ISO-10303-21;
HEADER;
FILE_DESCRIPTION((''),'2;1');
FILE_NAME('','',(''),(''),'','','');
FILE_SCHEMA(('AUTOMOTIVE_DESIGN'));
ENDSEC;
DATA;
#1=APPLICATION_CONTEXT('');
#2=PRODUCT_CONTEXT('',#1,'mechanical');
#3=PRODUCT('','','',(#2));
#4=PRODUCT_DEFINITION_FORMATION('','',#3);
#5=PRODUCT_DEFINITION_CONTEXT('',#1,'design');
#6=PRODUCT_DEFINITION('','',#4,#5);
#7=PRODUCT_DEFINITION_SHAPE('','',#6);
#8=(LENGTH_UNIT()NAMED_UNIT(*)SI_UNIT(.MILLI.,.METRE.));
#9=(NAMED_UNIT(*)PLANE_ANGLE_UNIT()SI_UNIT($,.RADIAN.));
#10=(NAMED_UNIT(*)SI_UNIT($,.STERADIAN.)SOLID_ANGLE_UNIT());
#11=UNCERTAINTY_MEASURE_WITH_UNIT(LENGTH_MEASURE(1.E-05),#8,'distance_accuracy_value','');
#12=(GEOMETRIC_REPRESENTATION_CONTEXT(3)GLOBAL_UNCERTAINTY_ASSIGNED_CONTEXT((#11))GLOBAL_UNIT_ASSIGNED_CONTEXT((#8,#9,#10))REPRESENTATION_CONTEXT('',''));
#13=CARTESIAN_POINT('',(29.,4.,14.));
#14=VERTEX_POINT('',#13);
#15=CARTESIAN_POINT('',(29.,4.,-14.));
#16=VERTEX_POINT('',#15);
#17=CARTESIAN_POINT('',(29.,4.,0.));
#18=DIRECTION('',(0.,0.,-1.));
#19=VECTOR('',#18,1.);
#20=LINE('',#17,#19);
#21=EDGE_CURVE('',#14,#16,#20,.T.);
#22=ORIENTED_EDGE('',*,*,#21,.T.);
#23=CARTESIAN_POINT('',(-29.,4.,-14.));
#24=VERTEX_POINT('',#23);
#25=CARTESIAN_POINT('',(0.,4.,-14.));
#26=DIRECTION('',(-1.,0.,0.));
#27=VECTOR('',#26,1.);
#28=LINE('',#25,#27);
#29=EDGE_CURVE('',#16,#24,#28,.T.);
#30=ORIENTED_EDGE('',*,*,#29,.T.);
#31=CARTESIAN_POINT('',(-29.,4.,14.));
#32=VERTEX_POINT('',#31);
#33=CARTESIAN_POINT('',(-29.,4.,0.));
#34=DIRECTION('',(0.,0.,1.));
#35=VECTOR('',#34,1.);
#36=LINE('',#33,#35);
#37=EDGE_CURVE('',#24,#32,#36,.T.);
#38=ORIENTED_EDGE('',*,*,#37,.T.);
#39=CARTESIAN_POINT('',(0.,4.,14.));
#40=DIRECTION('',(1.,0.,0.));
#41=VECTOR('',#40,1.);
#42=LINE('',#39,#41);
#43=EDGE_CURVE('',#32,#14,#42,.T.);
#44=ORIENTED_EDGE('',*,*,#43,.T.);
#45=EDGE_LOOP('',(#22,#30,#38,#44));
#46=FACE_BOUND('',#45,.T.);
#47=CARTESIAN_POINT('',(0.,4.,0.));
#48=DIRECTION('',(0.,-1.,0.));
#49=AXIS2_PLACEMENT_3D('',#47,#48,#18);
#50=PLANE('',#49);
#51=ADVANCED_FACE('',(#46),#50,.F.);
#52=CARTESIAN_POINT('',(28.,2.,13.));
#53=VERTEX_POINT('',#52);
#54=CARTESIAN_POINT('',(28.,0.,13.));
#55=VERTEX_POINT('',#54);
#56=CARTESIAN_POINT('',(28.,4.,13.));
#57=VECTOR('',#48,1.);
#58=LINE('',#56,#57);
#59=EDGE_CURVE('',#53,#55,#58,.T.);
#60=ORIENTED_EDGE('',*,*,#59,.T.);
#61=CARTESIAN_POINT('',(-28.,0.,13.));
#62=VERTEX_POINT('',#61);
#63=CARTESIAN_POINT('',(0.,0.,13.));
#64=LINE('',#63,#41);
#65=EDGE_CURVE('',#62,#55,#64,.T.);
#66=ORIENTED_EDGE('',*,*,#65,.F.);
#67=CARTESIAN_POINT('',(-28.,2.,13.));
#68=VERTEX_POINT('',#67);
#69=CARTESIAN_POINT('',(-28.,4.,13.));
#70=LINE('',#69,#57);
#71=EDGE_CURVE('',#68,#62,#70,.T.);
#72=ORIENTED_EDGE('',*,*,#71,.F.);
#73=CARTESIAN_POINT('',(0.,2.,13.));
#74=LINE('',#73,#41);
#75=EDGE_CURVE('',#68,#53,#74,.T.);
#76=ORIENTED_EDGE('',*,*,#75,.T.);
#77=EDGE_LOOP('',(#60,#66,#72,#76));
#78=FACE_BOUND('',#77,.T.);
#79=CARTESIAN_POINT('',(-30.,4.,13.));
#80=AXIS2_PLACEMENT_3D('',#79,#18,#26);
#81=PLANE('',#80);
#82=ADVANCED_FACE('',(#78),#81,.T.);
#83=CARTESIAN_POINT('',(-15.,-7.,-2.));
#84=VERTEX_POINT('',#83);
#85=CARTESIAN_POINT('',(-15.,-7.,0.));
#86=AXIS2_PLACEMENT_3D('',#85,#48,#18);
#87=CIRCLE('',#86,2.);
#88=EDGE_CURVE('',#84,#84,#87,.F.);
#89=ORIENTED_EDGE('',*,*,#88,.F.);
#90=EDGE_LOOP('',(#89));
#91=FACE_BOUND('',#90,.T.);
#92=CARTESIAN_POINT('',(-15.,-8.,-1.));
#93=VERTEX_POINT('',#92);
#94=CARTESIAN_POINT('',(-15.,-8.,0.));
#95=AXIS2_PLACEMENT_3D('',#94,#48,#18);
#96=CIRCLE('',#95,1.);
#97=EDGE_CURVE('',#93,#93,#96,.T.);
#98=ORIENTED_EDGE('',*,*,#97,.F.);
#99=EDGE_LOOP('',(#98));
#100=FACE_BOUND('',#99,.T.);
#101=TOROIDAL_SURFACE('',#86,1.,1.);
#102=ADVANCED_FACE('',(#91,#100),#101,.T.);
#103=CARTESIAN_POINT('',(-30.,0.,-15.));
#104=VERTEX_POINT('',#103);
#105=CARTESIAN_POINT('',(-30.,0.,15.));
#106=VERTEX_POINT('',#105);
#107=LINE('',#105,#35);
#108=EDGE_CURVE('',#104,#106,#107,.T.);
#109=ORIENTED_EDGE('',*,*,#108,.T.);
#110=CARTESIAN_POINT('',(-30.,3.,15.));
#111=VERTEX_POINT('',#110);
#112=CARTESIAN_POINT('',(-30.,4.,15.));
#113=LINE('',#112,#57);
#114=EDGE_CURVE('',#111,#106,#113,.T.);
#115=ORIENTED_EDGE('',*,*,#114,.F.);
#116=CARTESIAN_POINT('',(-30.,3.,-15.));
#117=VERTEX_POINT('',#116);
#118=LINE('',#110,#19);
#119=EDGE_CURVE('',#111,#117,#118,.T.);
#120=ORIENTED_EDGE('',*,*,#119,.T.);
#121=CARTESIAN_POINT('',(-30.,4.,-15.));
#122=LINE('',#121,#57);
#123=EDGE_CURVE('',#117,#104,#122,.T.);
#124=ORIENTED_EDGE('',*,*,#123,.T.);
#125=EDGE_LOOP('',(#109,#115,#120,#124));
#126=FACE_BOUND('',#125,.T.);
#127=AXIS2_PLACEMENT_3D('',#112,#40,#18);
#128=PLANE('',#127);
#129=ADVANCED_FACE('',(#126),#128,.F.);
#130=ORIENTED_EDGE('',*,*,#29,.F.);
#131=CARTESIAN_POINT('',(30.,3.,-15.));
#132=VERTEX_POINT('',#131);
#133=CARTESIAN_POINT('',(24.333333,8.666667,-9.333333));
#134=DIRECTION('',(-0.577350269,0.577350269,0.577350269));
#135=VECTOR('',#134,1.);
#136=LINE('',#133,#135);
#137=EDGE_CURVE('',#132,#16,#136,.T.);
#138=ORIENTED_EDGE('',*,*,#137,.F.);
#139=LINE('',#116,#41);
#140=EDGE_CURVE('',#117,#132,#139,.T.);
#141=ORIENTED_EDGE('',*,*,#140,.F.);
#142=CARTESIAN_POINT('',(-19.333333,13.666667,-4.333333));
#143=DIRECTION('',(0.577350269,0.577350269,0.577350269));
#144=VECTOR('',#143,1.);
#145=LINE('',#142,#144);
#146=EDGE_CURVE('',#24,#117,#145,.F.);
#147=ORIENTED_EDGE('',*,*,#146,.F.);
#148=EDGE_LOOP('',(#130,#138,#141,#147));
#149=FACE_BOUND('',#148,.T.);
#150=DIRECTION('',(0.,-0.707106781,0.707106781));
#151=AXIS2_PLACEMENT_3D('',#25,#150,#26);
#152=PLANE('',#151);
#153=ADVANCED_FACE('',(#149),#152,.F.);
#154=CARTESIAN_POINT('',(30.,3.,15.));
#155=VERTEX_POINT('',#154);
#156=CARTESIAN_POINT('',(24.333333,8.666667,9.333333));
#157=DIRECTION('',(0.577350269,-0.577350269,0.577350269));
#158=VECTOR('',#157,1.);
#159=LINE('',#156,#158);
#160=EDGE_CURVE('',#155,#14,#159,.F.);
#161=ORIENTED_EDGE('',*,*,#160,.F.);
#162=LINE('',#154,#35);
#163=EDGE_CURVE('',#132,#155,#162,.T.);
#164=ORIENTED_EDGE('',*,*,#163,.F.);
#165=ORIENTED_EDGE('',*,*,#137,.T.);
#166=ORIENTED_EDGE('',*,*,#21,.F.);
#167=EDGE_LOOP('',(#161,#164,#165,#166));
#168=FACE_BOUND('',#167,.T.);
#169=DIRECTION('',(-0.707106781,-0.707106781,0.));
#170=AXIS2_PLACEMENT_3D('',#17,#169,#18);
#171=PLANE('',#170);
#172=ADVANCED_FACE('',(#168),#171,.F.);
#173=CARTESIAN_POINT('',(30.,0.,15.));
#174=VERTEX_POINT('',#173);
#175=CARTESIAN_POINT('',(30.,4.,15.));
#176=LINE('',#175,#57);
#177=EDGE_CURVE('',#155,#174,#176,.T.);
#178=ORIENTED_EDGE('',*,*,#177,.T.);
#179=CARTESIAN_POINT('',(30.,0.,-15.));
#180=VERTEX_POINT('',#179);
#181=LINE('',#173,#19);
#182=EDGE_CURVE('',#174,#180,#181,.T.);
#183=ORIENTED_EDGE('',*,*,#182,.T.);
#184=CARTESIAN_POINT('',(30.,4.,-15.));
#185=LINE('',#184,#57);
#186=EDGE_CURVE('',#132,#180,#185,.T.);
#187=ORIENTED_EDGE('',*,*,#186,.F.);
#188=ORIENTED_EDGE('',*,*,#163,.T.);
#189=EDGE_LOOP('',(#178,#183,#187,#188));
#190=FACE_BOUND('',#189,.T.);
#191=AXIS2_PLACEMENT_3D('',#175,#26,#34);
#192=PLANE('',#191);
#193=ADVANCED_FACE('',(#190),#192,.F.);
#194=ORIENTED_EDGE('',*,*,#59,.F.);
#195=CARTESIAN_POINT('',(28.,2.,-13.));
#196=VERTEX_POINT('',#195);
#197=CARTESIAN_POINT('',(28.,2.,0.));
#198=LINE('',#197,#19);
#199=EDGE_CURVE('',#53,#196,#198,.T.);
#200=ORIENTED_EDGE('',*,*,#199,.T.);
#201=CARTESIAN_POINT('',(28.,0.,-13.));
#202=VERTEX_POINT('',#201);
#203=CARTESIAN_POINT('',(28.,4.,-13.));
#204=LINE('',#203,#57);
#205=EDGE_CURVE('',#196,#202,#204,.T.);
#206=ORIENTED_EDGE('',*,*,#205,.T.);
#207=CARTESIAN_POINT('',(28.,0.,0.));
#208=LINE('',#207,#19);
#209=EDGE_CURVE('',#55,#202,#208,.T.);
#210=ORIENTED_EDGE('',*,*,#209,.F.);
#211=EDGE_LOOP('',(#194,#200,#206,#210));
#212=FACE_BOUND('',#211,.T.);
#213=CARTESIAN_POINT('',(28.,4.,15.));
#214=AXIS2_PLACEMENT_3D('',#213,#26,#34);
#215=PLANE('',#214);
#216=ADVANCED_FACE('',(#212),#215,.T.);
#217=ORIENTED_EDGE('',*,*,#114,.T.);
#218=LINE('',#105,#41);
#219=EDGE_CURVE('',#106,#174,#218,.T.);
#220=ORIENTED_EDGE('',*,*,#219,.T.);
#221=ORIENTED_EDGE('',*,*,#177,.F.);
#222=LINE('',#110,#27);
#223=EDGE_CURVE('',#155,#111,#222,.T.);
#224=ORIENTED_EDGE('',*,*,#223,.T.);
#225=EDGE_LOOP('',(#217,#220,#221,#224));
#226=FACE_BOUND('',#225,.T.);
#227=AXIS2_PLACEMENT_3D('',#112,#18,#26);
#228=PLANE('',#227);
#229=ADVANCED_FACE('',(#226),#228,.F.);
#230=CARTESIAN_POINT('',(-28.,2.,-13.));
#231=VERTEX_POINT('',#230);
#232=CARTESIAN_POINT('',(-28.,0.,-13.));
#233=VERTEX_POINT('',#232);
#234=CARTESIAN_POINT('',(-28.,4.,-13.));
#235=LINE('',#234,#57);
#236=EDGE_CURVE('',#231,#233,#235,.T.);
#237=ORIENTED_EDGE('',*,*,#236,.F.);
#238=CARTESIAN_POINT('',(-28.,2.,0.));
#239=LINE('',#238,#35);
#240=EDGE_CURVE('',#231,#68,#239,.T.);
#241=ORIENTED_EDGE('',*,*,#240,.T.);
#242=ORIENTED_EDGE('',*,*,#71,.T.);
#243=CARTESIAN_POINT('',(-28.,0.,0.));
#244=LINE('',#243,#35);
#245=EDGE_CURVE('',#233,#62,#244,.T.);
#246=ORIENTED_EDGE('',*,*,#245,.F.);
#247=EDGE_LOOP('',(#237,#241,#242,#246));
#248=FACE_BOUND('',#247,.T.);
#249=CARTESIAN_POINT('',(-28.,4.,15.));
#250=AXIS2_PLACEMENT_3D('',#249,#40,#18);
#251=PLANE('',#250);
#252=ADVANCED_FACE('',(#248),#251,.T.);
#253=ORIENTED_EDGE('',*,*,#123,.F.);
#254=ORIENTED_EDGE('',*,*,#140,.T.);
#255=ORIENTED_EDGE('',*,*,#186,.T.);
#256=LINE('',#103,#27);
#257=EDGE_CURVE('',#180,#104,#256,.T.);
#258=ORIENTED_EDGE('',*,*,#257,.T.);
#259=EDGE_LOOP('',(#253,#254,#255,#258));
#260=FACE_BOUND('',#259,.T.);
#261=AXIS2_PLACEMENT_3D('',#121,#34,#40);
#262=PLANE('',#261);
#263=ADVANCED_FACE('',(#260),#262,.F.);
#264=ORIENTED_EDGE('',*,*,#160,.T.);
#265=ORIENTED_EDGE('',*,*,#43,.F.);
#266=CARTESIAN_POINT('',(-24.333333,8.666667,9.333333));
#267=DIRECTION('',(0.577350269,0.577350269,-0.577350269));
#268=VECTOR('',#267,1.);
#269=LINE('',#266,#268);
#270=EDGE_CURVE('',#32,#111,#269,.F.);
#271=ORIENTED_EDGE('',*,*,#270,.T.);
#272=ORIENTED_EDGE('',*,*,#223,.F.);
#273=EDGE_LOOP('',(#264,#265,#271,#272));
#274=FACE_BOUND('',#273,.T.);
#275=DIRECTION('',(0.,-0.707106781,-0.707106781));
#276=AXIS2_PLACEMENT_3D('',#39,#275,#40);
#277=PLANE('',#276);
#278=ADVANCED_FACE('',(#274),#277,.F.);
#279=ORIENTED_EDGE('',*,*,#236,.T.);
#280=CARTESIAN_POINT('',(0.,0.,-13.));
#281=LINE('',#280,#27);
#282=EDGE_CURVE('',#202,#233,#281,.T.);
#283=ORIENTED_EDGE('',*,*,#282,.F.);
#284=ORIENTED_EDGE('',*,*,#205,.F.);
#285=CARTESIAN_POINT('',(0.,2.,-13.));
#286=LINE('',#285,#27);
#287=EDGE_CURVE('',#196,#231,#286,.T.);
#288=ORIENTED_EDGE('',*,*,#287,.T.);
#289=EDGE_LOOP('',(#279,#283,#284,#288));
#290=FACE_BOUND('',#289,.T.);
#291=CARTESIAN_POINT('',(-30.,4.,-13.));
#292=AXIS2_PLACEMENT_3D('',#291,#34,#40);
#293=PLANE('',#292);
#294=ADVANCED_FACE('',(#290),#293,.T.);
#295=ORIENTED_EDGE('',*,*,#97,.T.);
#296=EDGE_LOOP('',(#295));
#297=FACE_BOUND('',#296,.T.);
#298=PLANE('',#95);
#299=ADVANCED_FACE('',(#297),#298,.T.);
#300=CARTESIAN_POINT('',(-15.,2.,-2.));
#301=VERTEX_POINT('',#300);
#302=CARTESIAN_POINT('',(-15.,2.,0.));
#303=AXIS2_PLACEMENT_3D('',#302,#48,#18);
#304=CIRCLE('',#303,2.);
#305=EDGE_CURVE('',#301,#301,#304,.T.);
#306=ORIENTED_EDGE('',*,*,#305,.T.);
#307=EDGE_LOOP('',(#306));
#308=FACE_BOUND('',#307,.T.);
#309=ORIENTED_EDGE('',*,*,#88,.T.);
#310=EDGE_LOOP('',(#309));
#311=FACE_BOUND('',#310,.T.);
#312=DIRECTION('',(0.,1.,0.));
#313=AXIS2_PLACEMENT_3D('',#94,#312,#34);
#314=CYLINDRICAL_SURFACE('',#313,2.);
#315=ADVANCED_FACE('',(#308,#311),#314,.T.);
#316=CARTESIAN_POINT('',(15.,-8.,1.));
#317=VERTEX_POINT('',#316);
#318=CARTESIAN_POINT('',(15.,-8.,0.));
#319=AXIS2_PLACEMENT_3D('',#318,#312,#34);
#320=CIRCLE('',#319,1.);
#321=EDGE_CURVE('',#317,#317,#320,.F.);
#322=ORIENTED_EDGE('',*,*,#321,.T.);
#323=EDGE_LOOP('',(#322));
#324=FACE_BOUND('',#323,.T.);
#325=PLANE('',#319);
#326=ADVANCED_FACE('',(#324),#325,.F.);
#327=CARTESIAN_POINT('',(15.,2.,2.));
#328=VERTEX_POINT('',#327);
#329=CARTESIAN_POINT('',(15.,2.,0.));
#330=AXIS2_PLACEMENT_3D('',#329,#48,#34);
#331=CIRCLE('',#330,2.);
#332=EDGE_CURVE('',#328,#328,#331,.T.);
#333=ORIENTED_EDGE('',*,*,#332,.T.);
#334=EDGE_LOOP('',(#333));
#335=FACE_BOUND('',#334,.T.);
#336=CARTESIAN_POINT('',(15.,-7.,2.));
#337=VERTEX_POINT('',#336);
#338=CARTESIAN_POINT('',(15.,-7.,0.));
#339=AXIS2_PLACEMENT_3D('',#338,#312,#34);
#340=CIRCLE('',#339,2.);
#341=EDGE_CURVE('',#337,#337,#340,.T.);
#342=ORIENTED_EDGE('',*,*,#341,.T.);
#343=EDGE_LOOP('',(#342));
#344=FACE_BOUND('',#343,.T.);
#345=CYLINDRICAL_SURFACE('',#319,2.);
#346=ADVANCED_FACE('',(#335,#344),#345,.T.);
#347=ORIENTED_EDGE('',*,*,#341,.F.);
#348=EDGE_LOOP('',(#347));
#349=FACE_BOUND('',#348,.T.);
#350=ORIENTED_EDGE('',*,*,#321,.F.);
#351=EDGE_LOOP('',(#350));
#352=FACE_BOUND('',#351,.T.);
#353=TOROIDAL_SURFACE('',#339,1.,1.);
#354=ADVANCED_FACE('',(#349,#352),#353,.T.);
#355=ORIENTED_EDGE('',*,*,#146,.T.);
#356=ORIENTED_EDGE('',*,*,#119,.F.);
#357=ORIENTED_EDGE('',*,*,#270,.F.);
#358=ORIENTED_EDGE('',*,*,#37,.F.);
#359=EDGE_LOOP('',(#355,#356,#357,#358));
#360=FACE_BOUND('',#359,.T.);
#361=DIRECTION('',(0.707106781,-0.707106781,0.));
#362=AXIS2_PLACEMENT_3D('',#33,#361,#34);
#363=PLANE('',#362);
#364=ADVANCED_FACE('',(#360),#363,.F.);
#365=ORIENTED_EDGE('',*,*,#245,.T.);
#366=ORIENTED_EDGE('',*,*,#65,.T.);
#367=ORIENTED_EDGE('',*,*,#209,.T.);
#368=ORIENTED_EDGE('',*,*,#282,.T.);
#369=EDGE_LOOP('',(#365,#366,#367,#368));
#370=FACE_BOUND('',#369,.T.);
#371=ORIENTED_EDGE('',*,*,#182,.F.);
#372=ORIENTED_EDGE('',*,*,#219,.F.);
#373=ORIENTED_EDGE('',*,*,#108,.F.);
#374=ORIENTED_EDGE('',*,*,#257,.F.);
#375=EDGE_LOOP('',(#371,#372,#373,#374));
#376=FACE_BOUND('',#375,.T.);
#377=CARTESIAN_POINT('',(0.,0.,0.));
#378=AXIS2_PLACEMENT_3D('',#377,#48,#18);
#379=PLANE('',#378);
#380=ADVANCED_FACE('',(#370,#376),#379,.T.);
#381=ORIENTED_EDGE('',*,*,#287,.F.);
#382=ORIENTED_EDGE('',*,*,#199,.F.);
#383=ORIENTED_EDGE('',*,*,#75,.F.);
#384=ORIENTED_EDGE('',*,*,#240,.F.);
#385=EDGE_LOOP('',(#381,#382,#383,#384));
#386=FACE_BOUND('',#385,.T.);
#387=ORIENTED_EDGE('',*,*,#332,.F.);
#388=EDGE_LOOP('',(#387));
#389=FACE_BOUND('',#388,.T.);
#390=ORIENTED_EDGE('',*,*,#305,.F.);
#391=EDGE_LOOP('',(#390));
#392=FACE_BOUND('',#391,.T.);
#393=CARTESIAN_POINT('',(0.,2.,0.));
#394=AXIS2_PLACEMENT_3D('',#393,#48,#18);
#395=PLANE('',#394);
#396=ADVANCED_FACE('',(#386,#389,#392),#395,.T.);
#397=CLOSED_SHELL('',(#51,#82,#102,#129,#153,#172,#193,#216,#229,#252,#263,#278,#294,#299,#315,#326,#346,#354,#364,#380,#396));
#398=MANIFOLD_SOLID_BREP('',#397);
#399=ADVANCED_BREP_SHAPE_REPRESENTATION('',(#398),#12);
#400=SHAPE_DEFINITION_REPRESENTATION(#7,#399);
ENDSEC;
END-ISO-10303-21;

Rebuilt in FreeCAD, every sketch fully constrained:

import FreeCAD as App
import Part
import Sketcher

V = App.Vector
Q = App.Units.Quantity


def edges_at(feature, points):
    """Names of the edges that pass closest to the given points."""
    edges = feature.Shape.Edges
    near = lambda p: min(range(len(edges)), key=lambda i: edges[i].distToShape(Part.Vertex(*p))[0])
    return sorted({f"Edge{near(p) + 1}" for p in points})


def faces_at(feature, points):
    """Names of the faces that lie closest to the given points."""
    faces = feature.Shape.Faces
    near = lambda p: min(range(len(faces)), key=lambda i: faces[i].distToShape(Part.Vertex(*p))[0])
    return sorted({f"Face{near(p) + 1}" for p in points})

doc = App.newDocument("Part")
body = doc.addObject("PartDesign::Body", "Body")

# Sketch on XZ plane
sketch1 = body.newObject("Sketcher::SketchObject", "Sketch")
sketch1.AttachmentSupport = (doc.getObject("XZ_Plane"), [""])
sketch1.MapMode = "FlatFace"
sketch1.addGeometry([
    Part.LineSegment(V(-30, -15, 0), V(-30, 15, 0)),
    Part.LineSegment(V(-30, 15, 0), V(30, 15, 0)),
    Part.LineSegment(V(30, 15, 0), V(30, -15, 0)),
    Part.LineSegment(V(30, -15, 0), V(-30, -15, 0)),
], False)
sketch1.addConstraint([
    Sketcher.Constraint("Coincident", 0, 2, 1, 1),
    Sketcher.Constraint("Coincident", 1, 2, 2, 1),
    Sketcher.Constraint("Coincident", 2, 2, 3, 1),
    Sketcher.Constraint("Coincident", 3, 2, 0, 1),
    Sketcher.Constraint("Vertical", 0),
    Sketcher.Constraint("Horizontal", 1),
    Sketcher.Constraint("Vertical", 2),
    Sketcher.Constraint("Horizontal", 3),
    Sketcher.Constraint("Symmetric", 0, 2, 2, 2, -1, 1),
    Sketcher.Constraint("DistanceX", 1, 1, 1, 2, Q("60 mm")),
    Sketcher.Constraint("DistanceY", 0, 1, 0, 2, Q("30 mm")),
])
pad1 = body.newObject("PartDesign::Pad", "Pad")
pad1.Profile = sketch1
pad1.Length = 4
pad1.Reversed = True
doc.recompute()

thickness = body.newObject("PartDesign::Thickness", "Thickness")
thickness.Base = (pad1, faces_at(pad1, [(0, 0, 0)]))
thickness.Value = 2
thickness.Reversed = True
thickness.Join = "Intersection"

# Sketch on XZ plane
sketch2 = body.newObject("Sketcher::SketchObject", "Sketch001")
sketch2.AttachmentSupport = (doc.getObject("XZ_Plane"), [""])
sketch2.MapMode = "FlatFace"
sketch2.AttachmentOffset = App.Placement(V(0, 0, -2), App.Rotation())
sketch2.addGeometry([
    Part.Circle(V(-15, 0, 0), V(0, 0, 1), 2),
    Part.Circle(V(15, 0, 0), V(0, 0, 1), 2),
], False)
sketch2.addConstraint([
    Sketcher.Constraint("Equal", 0, 1),
    Sketcher.Constraint("Symmetric", 0, 3, 1, 3, -1, 1),
    Sketcher.Constraint("PointOnObject", 0, 3, -1),
    Sketcher.Constraint("Diameter", 0, Q("4 mm")),
    Sketcher.Constraint("DistanceX", 0, 3, -1, 1, Q("15 mm")),
])
pad2 = body.newObject("PartDesign::Pad", "Pad001")
pad2.Profile = sketch2
pad2.Length = 10
doc.recompute()

fillet = body.newObject("PartDesign::Fillet", "Fillet")
fillet.Base = (pad2, edges_at(pad2, [(-17, -8, 0), (13, -8, 0)]))
fillet.Radius = 1
doc.recompute()

chamfer = body.newObject("PartDesign::Chamfer", "Chamfer")
chamfer.Base = (fillet, edges_at(fillet, [
    (-30, 4, 0),
    (0, 4, 15),
    (30, 4, 0),
    (0, 4, -15),
]))
chamfer.Size = 1

doc.recompute()
